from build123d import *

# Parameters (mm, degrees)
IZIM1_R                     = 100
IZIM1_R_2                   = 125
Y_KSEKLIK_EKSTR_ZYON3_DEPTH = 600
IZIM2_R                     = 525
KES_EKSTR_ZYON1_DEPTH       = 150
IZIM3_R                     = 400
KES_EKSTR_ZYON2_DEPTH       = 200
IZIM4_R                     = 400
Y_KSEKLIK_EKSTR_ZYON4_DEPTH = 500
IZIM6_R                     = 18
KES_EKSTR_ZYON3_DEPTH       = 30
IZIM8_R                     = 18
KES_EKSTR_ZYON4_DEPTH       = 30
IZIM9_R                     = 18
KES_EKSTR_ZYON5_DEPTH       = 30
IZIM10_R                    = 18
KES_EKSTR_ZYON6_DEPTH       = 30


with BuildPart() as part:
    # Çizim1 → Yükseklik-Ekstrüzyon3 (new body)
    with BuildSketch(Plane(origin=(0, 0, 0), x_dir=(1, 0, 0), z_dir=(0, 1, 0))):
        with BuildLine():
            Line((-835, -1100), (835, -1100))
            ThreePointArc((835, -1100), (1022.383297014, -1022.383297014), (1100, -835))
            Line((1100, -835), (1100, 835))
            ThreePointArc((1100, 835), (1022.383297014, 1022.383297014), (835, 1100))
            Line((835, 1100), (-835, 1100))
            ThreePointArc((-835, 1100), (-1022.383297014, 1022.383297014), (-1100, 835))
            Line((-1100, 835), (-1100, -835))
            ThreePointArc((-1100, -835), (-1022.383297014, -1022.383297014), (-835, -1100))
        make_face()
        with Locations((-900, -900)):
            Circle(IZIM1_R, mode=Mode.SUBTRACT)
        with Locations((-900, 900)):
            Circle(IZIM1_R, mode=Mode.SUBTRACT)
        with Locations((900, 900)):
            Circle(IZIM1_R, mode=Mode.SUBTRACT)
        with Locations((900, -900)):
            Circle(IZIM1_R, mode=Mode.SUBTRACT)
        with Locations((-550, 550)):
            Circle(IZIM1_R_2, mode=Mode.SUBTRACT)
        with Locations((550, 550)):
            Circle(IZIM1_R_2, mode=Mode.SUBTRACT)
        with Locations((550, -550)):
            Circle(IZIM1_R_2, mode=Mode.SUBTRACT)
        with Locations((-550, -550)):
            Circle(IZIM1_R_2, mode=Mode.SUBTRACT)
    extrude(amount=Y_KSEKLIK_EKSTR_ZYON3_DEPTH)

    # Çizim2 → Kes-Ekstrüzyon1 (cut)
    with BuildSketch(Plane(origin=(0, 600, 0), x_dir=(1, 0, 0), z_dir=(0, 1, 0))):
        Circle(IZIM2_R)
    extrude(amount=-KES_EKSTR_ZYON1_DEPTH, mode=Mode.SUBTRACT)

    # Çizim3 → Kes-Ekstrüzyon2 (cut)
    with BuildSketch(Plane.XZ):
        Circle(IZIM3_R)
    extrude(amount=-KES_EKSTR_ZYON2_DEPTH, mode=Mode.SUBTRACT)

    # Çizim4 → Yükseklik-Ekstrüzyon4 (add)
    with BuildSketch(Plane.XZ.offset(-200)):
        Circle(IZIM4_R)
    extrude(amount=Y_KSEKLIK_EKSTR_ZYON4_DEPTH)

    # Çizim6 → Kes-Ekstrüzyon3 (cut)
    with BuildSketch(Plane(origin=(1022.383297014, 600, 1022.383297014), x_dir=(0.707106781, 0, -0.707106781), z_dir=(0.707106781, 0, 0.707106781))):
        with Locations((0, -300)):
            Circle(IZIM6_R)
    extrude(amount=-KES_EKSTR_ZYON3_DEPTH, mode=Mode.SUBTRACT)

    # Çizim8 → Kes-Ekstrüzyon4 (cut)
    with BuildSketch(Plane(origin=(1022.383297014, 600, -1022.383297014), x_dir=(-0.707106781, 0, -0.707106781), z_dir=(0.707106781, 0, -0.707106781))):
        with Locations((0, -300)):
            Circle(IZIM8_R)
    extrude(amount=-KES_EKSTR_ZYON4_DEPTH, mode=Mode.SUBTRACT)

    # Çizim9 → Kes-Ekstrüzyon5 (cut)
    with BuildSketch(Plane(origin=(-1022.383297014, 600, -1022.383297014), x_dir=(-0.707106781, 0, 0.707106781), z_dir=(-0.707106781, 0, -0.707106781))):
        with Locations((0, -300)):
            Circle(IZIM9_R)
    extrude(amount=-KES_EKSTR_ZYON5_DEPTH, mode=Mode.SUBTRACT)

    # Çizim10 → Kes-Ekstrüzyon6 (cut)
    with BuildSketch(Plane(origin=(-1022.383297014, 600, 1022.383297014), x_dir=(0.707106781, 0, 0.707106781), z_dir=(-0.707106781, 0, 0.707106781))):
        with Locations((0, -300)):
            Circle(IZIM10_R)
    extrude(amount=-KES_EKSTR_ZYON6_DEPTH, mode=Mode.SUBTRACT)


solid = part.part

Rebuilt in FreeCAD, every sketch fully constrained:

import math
import FreeCAD as App
import Part
import Sketcher

V = App.Vector
Q = App.Units.Quantity

doc = App.newDocument("Part")
body = doc.addObject("PartDesign::Body", "Body")

sketch1 = body.newObject("Sketcher::SketchObject", "Sketch")
sketch1.AttachmentSupport = (doc.getObject("XZ_Plane"), [""])
sketch1.MapMode = "FlatFace"
sketch1.addGeometry(Part.LineSegment(V(-835, 1100, 0), V(835, 1100, 0)), False)
sketch1.addGeometry(Part.ArcOfCircle(Part.Circle(V(835, 835, 0), V(0, 0, 1), 265), math.radians(0), math.radians(90)), False)
sketch1.addGeometry(Part.LineSegment(V(1100, 835, 0), V(1100, -835, 0)), False)
sketch1.addGeometry(Part.ArcOfCircle(Part.Circle(V(835, -835, 0), V(0, 0, 1), 265), math.radians(-90), math.radians(0)), False)
sketch1.addGeometry(Part.LineSegment(V(835, -1100, 0), V(-835, -1100, 0)), False)
sketch1.addGeometry(Part.ArcOfCircle(Part.Circle(V(-835, -835, 0), V(0, 0, 1), 265), math.radians(-180), math.radians(-90)), False)
sketch1.addGeometry(Part.LineSegment(V(-1100, -835, 0), V(-1100, 835, 0)), False)
sketch1.addGeometry(Part.ArcOfCircle(Part.Circle(V(-835, 835, 0), V(0, 0, 1), 265), math.radians(90), math.radians(180)), False)
sketch1.addGeometry(Part.Circle(V(-900, 900, 0), V(0, 0, 1), 100), False)
sketch1.addGeometry(Part.Circle(V(-550, 550, 0), V(0, 0, 1), 125), False)
sketch1.addGeometry(Part.Circle(V(900, 900, 0), V(0, 0, 1), 100), False)
sketch1.addGeometry(Part.Circle(V(550, 550, 0), V(0, 0, 1), 125), False)
sketch1.addGeometry(Part.Circle(V(-550, -550, 0), V(0, 0, 1), 125), False)
sketch1.addGeometry(Part.Circle(V(-900, -900, 0), V(0, 0, 1), 100), False)
sketch1.addGeometry(Part.Circle(V(550, -550, 0), V(0, 0, 1), 125), False)
sketch1.addGeometry(Part.Circle(V(900, -900, 0), V(0, 0, 1), 100), False)
sketch1.addConstraint(Sketcher.Constraint("Tangent", 0, 2, 1, 2))
sketch1.addConstraint(Sketcher.Constraint("Tangent", 1, 1, 2, 1))
sketch1.addConstraint(Sketcher.Constraint("Tangent", 2, 2, 3, 2))
sketch1.addConstraint(Sketcher.Constraint("Tangent", 3, 1, 4, 1))
sketch1.addConstraint(Sketcher.Constraint("Tangent", 4, 2, 5, 2))
sketch1.addConstraint(Sketcher.Constraint("Tangent", 5, 1, 6, 1))
sketch1.addConstraint(Sketcher.Constraint("Tangent", 6, 2, 7, 2))
sketch1.addConstraint(Sketcher.Constraint("Tangent", 7, 1, 0, 1))
sketch1.addConstraint(Sketcher.Constraint("Horizontal", 0))
sketch1.addConstraint(Sketcher.Constraint("Vertical", 2))
sketch1.addConstraint(Sketcher.Constraint("Horizontal", 4))
sketch1.addConstraint(Sketcher.Constraint("Vertical", 6))
sketch1.addConstraint(Sketcher.Constraint("Equal", 1, 3))
sketch1.addConstraint(Sketcher.Constraint("Equal", 3, 5))
sketch1.addConstraint(Sketcher.Constraint("Equal", 5, 7))
sketch1.addConstraint(Sketcher.Constraint("Equal", 8, 10))
sketch1.addConstraint(Sketcher.Constraint("Equal", 9, 11))
sketch1.addConstraint(Sketcher.Constraint("Equal", 11, 12))
sketch1.addConstraint(Sketcher.Constraint("Equal", 10, 13))
sketch1.addConstraint(Sketcher.Constraint("Equal", 12, 14))
sketch1.addConstraint(Sketcher.Constraint("Equal", 13, 15))
sketch1.addConstraint(Sketcher.Constraint("Symmetric", 1, 3, 5, 3, -1, 1))
sketch1.addConstraint(Sketcher.Constraint("Symmetric", 11, 3, 12, 3, -1, 1))
sketch1.addConstraint(Sketcher.Constraint("Symmetric", 10, 3, 13, 3, -1, 1))
sketch1.addConstraint(Sketcher.Constraint("Symmetric", 9, 3, 14, 3, -1, 1))
sketch1.addConstraint(Sketcher.Constraint("Symmetric", 8, 3, 15, 3, -1, 1))
sketch1.addConstraint(Sketcher.Constraint("Symmetric", 8, 3, 10, 3, -2))
sketch1.addConstraint(Sketcher.Constraint("Symmetric", 9, 3, 11, 3, -2))
sketch1.addConstraint(Sketcher.Constraint("Equal", 4, 2))
sketch1.addConstraint(Sketcher.Constraint("Diameter", 8, Q("200 mm")))
sketch1.addConstraint(Sketcher.Constraint("Diameter", 9, Q("250 mm")))
sketch1.addConstraint(Sketcher.Constraint("Radius", 1, Q("265 mm")))
sketch1.addConstraint(Sketcher.Constraint("DistanceX", 0, 1, 0, 2, Q("1670 mm")))
sketch1.addConstraint(Sketcher.Constraint("DistanceX", 8, 3, -1, 1, Q("900 mm")))
sketch1.addConstraint(Sketcher.Constraint("DistanceY", -1, 1, 8, 3, Q("900 mm")))
sketch1.addConstraint(Sketcher.Constraint("DistanceX", 9, 3, -1, 1, Q("550 mm")))
sketch1.addConstraint(Sketcher.Constraint("DistanceY", -1, 1, 9, 3, Q("550 mm")))
pad1 = body.newObject("PartDesign::Pad", "Pad")
pad1.Profile = sketch1
pad1.Length = 600
pad1.Reversed = True

sketch2 = body.newObject("Sketcher::SketchObject", "Sketch001")
sketch2.AttachmentSupport = (doc.getObject("XZ_Plane"), [""])
sketch2.MapMode = "FlatFace"
sketch2.AttachmentOffset = App.Placement(V(0, 0, -600), App.Rotation())
sketch2.addGeometry(Part.Circle(V(0, 0, 0), V(0, 0, 1), 525), False)
sketch2.addConstraint(Sketcher.Constraint("Coincident", 0, 3, -1, 1))
sketch2.addConstraint(Sketcher.Constraint("Diameter", 0, Q("1050 mm")))
pocket1 = body.newObject("PartDesign::Pocket", "Pocket")
pocket1.Profile = sketch2
pocket1.Length = 150
pocket1.Reversed = True

sketch3 = body.newObject("Sketcher::SketchObject", "Sketch002")
sketch3.AttachmentSupport = (doc.getObject("XZ_Plane"), [""])
sketch3.MapMode = "FlatFace"
sketch3.addGeometry(Part.Circle(V(0, 0, 0), V(0, 0, 1), 400), False)
sketch3.addConstraint(Sketcher.Constraint("Coincident", 0, 3, -1, 1))
sketch3.addConstraint(Sketcher.Constraint("Diameter", 0, Q("800 mm")))
pocket2 = body.newObject("PartDesign::Pocket", "Pocket001")
pocket2.Profile = sketch3
pocket2.Length = 200

sketch4 = body.newObject("Sketcher::SketchObject", "Sketch003")
sketch4.AttachmentSupport = (doc.getObject("XZ_Plane"), [""])
sketch4.MapMode = "FlatFace"
sketch4.AttachmentOffset = App.Placement(V(0, 0, -200), App.Rotation())
sketch4.addGeometry(Part.Circle(V(0, 0, 0), V(0, 0, 1), 400), False)
sketch4.addConstraint(Sketcher.Constraint("Coincident", 0, 3, -1, 1))
sketch4.addConstraint(Sketcher.Constraint("Diameter", 0, Q("800 mm")))
pad2 = body.newObject("PartDesign::Pad", "Pad001")
pad2.Profile = sketch4
pad2.Length = 500

sketch5 = body.newObject("Sketcher::SketchObject", "Sketch004")
sketch5.Placement = App.Placement(V(1022.383297, 600, 1022.383297), App.Rotation(V(0.707106781, 0, -0.707106781), V(0, 0.999999999, 0), V(0.707106781, 0, 0.707106781), "ZXY"))
sketch5.addGeometry(Part.Circle(V(0, -300, 0), V(0, 0, 1), 18), False)
sketch5.addConstraint(Sketcher.Constraint("PointOnObject", 0, 3, -2))
sketch5.addConstraint(Sketcher.Constraint("Diameter", 0, Q("36 mm")))
sketch5.addConstraint(Sketcher.Constraint("DistanceY", 0, 3, -1, 1, Q("300 mm")))
pocket3 = body.newObject("PartDesign::Pocket", "Pocket002")
pocket3.Profile = sketch5
pocket3.Length = 30

sketch6 = body.newObject("Sketcher::SketchObject", "Sketch005")
sketch6.Placement = App.Placement(V(1022.383297, 600, -1022.383297), App.Rotation(V(-0.707106781, 0, -0.707106781), V(0, 0.999999999, 0), V(0.707106781, 0, -0.707106781), "ZXY"))
sketch6.addGeometry(Part.Circle(V(0, -300, 0), V(0, 0, 1), 18), False)
sketch6.addConstraint(Sketcher.Constraint("PointOnObject", 0, 3, -2))
sketch6.addConstraint(Sketcher.Constraint("Diameter", 0, Q("36 mm")))
sketch6.addConstraint(Sketcher.Constraint("DistanceY", 0, 3, -1, 1, Q("300 mm")))
pocket4 = body.newObject("PartDesign::Pocket", "Pocket003")
pocket4.Profile = sketch6
pocket4.Length = 30

sketch7 = body.newObject("Sketcher::SketchObject", "Sketch006")
sketch7.Placement = App.Placement(V(-1022.383297, 600, -1022.383297), App.Rotation(V(-0.707106781, 0, 0.707106781), V(0, 0.999999999, 0), V(-0.707106781, 0, -0.707106781), "ZXY"))
sketch7.addGeometry(Part.Circle(V(0, -300, 0), V(0, 0, 1), 18), False)
sketch7.addConstraint(Sketcher.Constraint("PointOnObject", 0, 3, -2))
sketch7.addConstraint(Sketcher.Constraint("Diameter", 0, Q("36 mm")))
sketch7.addConstraint(Sketcher.Constraint("DistanceY", 0, 3, -1, 1, Q("300 mm")))
pocket5 = body.newObject("PartDesign::Pocket", "Pocket004")
pocket5.Profile = sketch7
pocket5.Length = 30

sketch8 = body.newObject("Sketcher::SketchObject", "Sketch007")
sketch8.Placement = App.Placement(V(-1022.383297, 600, 1022.383297), App.Rotation(V(0.707106781, 0, 0.707106781), V(0, 0.999999999, 0), V(-0.707106781, 0, 0.707106781), "ZXY"))
sketch8.addGeometry(Part.Circle(V(0, -300, 0), V(0, 0, 1), 18), False)
sketch8.addConstraint(Sketcher.Constraint("PointOnObject", 0, 3, -2))
sketch8.addConstraint(Sketcher.Constraint("Diameter", 0, Q("36 mm")))
sketch8.addConstraint(Sketcher.Constraint("DistanceY", 0, 3, -1, 1, Q("300 mm")))
pocket6 = body.newObject("PartDesign::Pocket", "Pocket005")
pocket6.Profile = sketch8
pocket6.Length = 30

doc.recompute()
